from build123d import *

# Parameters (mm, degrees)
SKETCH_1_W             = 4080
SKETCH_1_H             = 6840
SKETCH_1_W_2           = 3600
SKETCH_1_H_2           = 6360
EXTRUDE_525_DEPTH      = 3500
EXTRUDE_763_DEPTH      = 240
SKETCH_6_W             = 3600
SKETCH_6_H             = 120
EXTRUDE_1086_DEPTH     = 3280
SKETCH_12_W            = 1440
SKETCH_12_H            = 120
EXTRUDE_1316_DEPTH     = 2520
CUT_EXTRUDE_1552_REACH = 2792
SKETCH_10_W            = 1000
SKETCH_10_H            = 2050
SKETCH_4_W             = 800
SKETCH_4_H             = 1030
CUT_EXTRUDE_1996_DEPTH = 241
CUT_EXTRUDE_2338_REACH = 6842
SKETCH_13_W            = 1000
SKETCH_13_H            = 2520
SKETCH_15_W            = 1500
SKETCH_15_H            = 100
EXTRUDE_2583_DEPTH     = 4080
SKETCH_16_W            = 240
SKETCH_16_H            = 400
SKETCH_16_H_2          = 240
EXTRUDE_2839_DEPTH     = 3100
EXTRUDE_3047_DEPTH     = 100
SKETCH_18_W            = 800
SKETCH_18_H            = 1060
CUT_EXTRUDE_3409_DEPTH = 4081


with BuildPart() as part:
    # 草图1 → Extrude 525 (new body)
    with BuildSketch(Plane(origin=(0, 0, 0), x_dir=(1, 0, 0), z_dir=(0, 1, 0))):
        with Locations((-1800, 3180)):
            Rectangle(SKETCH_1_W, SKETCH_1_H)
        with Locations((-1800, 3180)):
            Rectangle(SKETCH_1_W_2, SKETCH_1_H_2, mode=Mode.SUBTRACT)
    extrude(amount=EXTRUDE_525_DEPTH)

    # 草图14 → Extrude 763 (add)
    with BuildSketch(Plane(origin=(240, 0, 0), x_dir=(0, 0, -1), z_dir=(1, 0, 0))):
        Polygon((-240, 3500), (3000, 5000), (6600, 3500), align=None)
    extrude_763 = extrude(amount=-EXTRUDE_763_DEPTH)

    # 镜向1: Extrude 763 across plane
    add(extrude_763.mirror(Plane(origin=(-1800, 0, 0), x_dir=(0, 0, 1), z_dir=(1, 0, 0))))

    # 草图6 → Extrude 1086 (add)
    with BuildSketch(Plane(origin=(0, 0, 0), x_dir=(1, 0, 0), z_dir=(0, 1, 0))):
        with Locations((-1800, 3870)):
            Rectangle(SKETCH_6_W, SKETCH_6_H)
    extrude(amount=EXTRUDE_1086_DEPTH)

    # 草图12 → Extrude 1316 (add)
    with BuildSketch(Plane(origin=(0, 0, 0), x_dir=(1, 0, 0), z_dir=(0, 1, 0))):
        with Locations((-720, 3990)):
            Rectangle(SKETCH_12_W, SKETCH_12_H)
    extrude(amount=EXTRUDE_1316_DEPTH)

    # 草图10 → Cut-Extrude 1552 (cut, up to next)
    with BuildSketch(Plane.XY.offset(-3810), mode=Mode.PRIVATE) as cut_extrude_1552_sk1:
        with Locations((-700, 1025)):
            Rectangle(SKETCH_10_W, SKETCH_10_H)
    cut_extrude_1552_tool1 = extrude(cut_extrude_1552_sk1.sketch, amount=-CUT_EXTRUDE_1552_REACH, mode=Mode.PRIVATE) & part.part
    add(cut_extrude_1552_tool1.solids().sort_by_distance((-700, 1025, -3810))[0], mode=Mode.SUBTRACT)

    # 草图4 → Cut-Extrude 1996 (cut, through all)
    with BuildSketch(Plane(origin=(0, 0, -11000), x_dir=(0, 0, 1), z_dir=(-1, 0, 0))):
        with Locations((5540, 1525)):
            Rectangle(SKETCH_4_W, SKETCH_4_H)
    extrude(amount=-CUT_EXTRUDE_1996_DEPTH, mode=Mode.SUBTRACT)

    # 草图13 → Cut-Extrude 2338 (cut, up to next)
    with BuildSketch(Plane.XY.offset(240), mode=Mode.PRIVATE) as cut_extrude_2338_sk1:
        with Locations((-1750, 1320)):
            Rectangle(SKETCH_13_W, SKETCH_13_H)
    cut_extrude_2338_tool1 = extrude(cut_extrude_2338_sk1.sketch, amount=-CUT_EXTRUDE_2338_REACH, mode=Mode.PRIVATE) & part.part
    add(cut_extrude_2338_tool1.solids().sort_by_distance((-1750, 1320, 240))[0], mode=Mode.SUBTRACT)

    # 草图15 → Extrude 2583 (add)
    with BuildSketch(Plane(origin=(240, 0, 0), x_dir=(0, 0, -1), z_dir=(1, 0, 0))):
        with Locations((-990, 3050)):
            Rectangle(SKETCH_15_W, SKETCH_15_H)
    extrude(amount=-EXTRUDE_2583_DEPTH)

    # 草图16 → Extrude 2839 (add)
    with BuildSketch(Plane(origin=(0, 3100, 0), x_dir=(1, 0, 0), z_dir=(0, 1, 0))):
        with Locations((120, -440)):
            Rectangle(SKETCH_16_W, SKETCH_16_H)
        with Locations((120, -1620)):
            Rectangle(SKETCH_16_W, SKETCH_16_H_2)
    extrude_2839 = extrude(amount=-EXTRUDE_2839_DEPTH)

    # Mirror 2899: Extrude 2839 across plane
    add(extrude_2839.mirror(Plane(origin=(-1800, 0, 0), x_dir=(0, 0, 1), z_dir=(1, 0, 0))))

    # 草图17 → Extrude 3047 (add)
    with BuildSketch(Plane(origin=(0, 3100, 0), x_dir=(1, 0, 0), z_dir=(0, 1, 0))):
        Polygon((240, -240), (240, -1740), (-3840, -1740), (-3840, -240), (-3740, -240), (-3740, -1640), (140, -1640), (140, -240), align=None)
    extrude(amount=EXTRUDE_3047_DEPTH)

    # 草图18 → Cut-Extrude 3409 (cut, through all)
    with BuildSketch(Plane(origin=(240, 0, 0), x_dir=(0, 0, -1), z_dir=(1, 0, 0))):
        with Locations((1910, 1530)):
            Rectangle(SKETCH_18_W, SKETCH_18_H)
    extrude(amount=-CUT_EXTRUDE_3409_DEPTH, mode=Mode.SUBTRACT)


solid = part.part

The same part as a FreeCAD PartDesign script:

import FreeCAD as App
import Part
import Sketcher

V = App.Vector
Q = App.Units.Quantity

doc = App.newDocument("Part")
params = doc.addObject("Spreadsheet::Sheet", "Params")
for row, (alias, value) in enumerate([
    ("sketch1_width", "4080 mm"),
    ("sketch1_width2", "3600 mm"),
    ("sketch1_height", "6840 mm"),
    ("sketch1_height2", "6360 mm"),
    ("pad1_length", "3500 mm"),
    ("sketch2_height", "6840 mm"),
    ("sketch2_length", "3900 mm"),
    ("pad2_length", "240 mm"),
    ("sketch3_width", "3600 mm"),
    ("sketch3_height", "120 mm"),
    ("pad3_length", "3280 mm"),
    ("sketch4_width", "1440 mm"),
    ("sketch4_height", "120 mm"),
    ("pad4_length", "2520 mm"),
    ("sketch5_width", "1000 mm"),
    ("sketch5_height", "2050 mm"),
    ("sketch6_width", "1030 mm"),
    ("sketch6_height", "800 mm"),
    ("sketch7_width", "1000 mm"),
    ("sketch7_height", "2520 mm"),
    ("sketch8_width", "100 mm"),
    ("sketch8_height", "1500 mm"),
    ("pad5_length", "4080 mm"),
    ("sketch9_width", "240 mm"),
    ("sketch9_height", "400 mm"),
    ("pad6_length", "3100 mm"),
    ("sketch10_width", "100 mm"),
    ("sketch10_width2", "3880 mm"),
    ("sketch10_height", "1500 mm"),
    ("sketch10_height2", "1400 mm"),
    ("pad7_length", "100 mm"),
    ("sketch11_width", "1060 mm"),
    ("sketch11_height", "800 mm"),
], start=1):
    params.set(f"A{row}", alias)
    params.set(f"B{row}", "=" + value)
    params.setAlias(f"B{row}", alias)

body = doc.addObject("PartDesign::Body", "Body")

# Sketch on XZ plane
sketch1 = body.newObject("Sketcher::SketchObject", "Sketch")
sketch1.AttachmentSupport = (doc.getObject("XZ_Plane"), [""])
sketch1.MapMode = "FlatFace"
sketch1.addGeometry([
    Part.LineSegment(V(-3840, -6600, 0), V(-3840, 240, 0)),  # 0
    Part.LineSegment(V(-3840, 240, 0), V(240, 240, 0)),  # 1
    Part.LineSegment(V(240, 240, 0), V(240, -6600, 0)),  # 2
    Part.LineSegment(V(240, -6600, 0), V(-3840, -6600, 0)),  # 3
    Part.LineSegment(V(0, 0, 0), V(-3600, 0, 0)),  # 4
    Part.LineSegment(V(-3600, 0, 0), V(-3600, -6360, 0)),  # 5
    Part.LineSegment(V(-3600, -6360, 0), V(0, -6360, 0)),  # 6
    Part.LineSegment(V(0, -6360, 0), V(0, 0, 0)),  # 7
], False)
sketch1.addConstraint([
    Sketcher.Constraint("Coincident", 0, 2, 1, 1),
    Sketcher.Constraint("Coincident", 1, 2, 2, 1),
    Sketcher.Constraint("Coincident", 2, 2, 3, 1),
    Sketcher.Constraint("Coincident", 3, 2, 0, 1),
    Sketcher.Constraint("Coincident", 4, 2, 5, 1),
    Sketcher.Constraint("Coincident", 5, 2, 6, 1),
    Sketcher.Constraint("Coincident", 6, 2, 7, 1),
    Sketcher.Constraint("Coincident", 7, 2, 4, 1),
    Sketcher.Constraint("Vertical", 0),
    Sketcher.Constraint("Horizontal", 1),
    Sketcher.Constraint("Vertical", 2),
    Sketcher.Constraint("Horizontal", 3),
    Sketcher.Constraint("Horizontal", 4),
    Sketcher.Constraint("Vertical", 5),
    Sketcher.Constraint("Horizontal", 6),
    Sketcher.Constraint("Vertical", 7),
    Sketcher.Constraint("Coincident", 7, 2, -1, 1),
    Sketcher.Constraint("DistanceX", 1, 1, 1, 2, Q("4080 mm")),
    Sketcher.Constraint("DistanceX", 4, 2, 4, 1, Q("3600 mm")),
    Sketcher.Constraint("DistanceY", 0, 1, 0, 2, Q("6840 mm")),
    Sketcher.Constraint("DistanceY", 5, 2, 5, 1, Q("6360 mm")),
    Sketcher.Constraint("DistanceX", 0, 2, -1, 1, Q("3840 mm")),
    Sketcher.Constraint("DistanceY", -1, 1, 0, 2, Q("240 mm")),
])
sketch1.setExpression("Constraints[17]", "Params.sketch1_width")
sketch1.setExpression("Constraints[18]", "Params.sketch1_width2")
sketch1.setExpression("Constraints[19]", "Params.sketch1_height")
sketch1.setExpression("Constraints[20]", "Params.sketch1_height2")
pad1 = body.newObject("PartDesign::Pad", "Pad")
pad1.Profile = sketch1
pad1.setExpression("Length", "Params.pad1_length")
pad1.Reversed = True

# Sketch on YZ plane
sketch2 = body.newObject("Sketcher::SketchObject", "Sketch001")
sketch2.AttachmentSupport = (doc.getObject("YZ_Plane"), [""])
sketch2.MapMode = "FlatFace"
sketch2.AttachmentOffset = App.Placement(V(0, 0, 240), App.Rotation())
sketch2.addGeometry([
    Part.LineSegment(V(5000, -3000, 0), V(3500, 240, 0)),
    Part.LineSegment(V(3500, 240, 0), V(3500, -6600, 0)),
    Part.LineSegment(V(3500, -6600, 0), V(5000, -3000, 0)),
], False)
sketch2.addConstraint([
    Sketcher.Constraint("Coincident", 0, 2, 1, 1),
    Sketcher.Constraint("Coincident", 1, 2, 2, 1),
    Sketcher.Constraint("Coincident", 2, 2, 0, 1),
    Sketcher.Constraint("Vertical", 1),
    Sketcher.Constraint("DistanceY", 1, 2, 1, 1, Q("6840 mm")),
    Sketcher.Constraint("Distance", 2, Q("3900 mm")),
    Sketcher.Constraint("DistanceX", -1, 1, 0, 2, Q("3500 mm")),
    Sketcher.Constraint("DistanceY", -1, 1, 0, 2, Q("240 mm")),
    Sketcher.Constraint("DistanceX", -1, 1, 2, 2, Q("5000 mm")),
])
sketch2.setExpression("Constraints[4]", "Params.sketch2_height")
sketch2.setExpression("Constraints[5]", "Params.sketch2_length")
pad2 = body.newObject("PartDesign::Pad", "Pad001")
pad2.Profile = sketch2
pad2.setExpression("Length", "Params.pad2_length")
pad2.Reversed = True
doc.recompute()

datumplane = body.newObject("PartDesign::Plane", "DatumPlane")
datumplane.AttachmentSupport = (doc.getObject("YZ_Plane"), [""])
datumplane.MapMode = "FlatFace"
datumplane.AttachmentOffset = App.Placement(V(0, 0, -1800), App.Rotation())
mirrored = body.newObject("PartDesign::Mirrored", "Mirrored")
mirrored.Originals = [pad2]
mirrored.MirrorPlane = (datumplane, [""])
body.Tip = mirrored

# Sketch on XZ plane
sketch3 = body.newObject("Sketcher::SketchObject", "Sketch002")
sketch3.AttachmentSupport = (doc.getObject("XZ_Plane"), [""])
sketch3.MapMode = "FlatFace"
sketch3.addGeometry([
    Part.LineSegment(V(-3600, -3930, 0), V(-3600, -3810, 0)),
    Part.LineSegment(V(-3600, -3810, 0), V(0, -3810, 0)),
    Part.LineSegment(V(0, -3810, 0), V(0, -3930, 0)),
    Part.LineSegment(V(0, -3930, 0), V(-3600, -3930, 0)),
], False)
sketch3.addConstraint([
    Sketcher.Constraint("Coincident", 0, 2, 1, 1),
    Sketcher.Constraint("Coincident", 1, 2, 2, 1),
    Sketcher.Constraint("Coincident", 2, 2, 3, 1),
    Sketcher.Constraint("Coincident", 3, 2, 0, 1),
    Sketcher.Constraint("Vertical", 0),
    Sketcher.Constraint("Horizontal", 1),
    Sketcher.Constraint("Vertical", 2),
    Sketcher.Constraint("Horizontal", 3),
    Sketcher.Constraint("PointOnObject", 1, 2, -2),
    Sketcher.Constraint("DistanceX", 1, 1, 1, 2, Q("3600 mm")),
    Sketcher.Constraint("DistanceY", 0, 1, 0, 2, Q("120 mm")),
    Sketcher.Constraint("DistanceY", 0, 2, -1, 1, Q("3810 mm")),
])
sketch3.setExpression("Constraints[9]", "Params.sketch3_width")
sketch3.setExpression("Constraints[10]", "Params.sketch3_height")
pad3 = body.newObject("PartDesign::Pad", "Pad002")
pad3.Profile = sketch3
pad3.setExpression("Length", "Params.pad3_length")
pad3.Reversed = True

# Sketch on XZ plane
sketch4 = body.newObject("Sketcher::SketchObject", "Sketch003")
sketch4.AttachmentSupport = (doc.getObject("XZ_Plane"), [""])
sketch4.MapMode = "FlatFace"
sketch4.addGeometry([
    Part.LineSegment(V(-1440, -4050, 0), V(-1440, -3930, 0)),
    Part.LineSegment(V(-1440, -3930, 0), V(0, -3930, 0)),
    Part.LineSegment(V(0, -3930, 0), V(0, -4050, 0)),
    Part.LineSegment(V(0, -4050, 0), V(-1440, -4050, 0)),
], False)
sketch4.addConstraint([
    Sketcher.Constraint("Coincident", 0, 2, 1, 1),
    Sketcher.Constraint("Coincident", 1, 2, 2, 1),
    Sketcher.Constraint("Coincident", 2, 2, 3, 1),
    Sketcher.Constraint("Coincident", 3, 2, 0, 1),
    Sketcher.Constraint("Vertical", 0),
    Sketcher.Constraint("Horizontal", 1),
    Sketcher.Constraint("Vertical", 2),
    Sketcher.Constraint("Horizontal", 3),
    Sketcher.Constraint("PointOnObject", 1, 2, -2),
    Sketcher.Constraint("DistanceX", 1, 1, 1, 2, Q("1440 mm")),
    Sketcher.Constraint("DistanceY", 0, 1, 0, 2, Q("120 mm")),
    Sketcher.Constraint("DistanceY", 0, 2, -1, 1, Q("3930 mm")),
])
sketch4.setExpression("Constraints[9]", "Params.sketch4_width")
sketch4.setExpression("Constraints[10]", "Params.sketch4_height")
pad4 = body.newObject("PartDesign::Pad", "Pad003")
pad4.Profile = sketch4
pad4.setExpression("Length", "Params.pad4_length")
pad4.Reversed = True

# Sketch on XY plane
sketch5 = body.newObject("Sketcher::SketchObject", "Sketch004")
sketch5.AttachmentSupport = (doc.getObject("XY_Plane"), [""])
sketch5.MapMode = "FlatFace"
sketch5.AttachmentOffset = App.Placement(V(0, 0, -3810), App.Rotation())
sketch5.addGeometry([
    Part.LineSegment(V(-1200, 2050, 0), V(-1200, 0, 0)),
    Part.LineSegment(V(-1200, 0, 0), V(-200, 0, 0)),
    Part.LineSegment(V(-200, 0, 0), V(-200, 2050, 0)),
    Part.LineSegment(V(-200, 2050, 0), V(-1200, 2050, 0)),
], False)
sketch5.addConstraint([
    Sketcher.Constraint("Coincident", 0, 2, 1, 1),
    Sketcher.Constraint("Coincident", 1, 2, 2, 1),
    Sketcher.Constraint("Coincident", 2, 2, 3, 1),
    Sketcher.Constraint("Coincident", 3, 2, 0, 1),
    Sketcher.Constraint("Vertical", 0),
    Sketcher.Constraint("Horizontal", 1),
    Sketcher.Constraint("Vertical", 2),
    Sketcher.Constraint("Horizontal", 3),
    Sketcher.Constraint("PointOnObject", 0, 2, -1),
    Sketcher.Constraint("DistanceX", 1, 1, 1, 2, Q("1000 mm")),
    Sketcher.Constraint("DistanceY", 0, 2, 0, 1, Q("2050 mm")),
    Sketcher.Constraint("DistanceX", 0, 2, -1, 1, Q("1200 mm")),
])
sketch5.setExpression("Constraints[9]", "Params.sketch5_width")
sketch5.setExpression("Constraints[10]", "Params.sketch5_height")
pocket1 = body.newObject("PartDesign::Pocket", "Pocket")
pocket1.Profile = sketch5
pocket1.Type = "UpToFirst"

# Sketch on YZ plane
sketch6 = body.newObject("Sketcher::SketchObject", "Sketch005")
sketch6.AttachmentSupport = (doc.getObject("YZ_Plane"), [""])
sketch6.MapMode = "FlatFace"
sketch6.addGeometry([
    Part.LineSegment(V(2040, -5860, 0), V(1010, -5860, 0)),
    Part.LineSegment(V(1010, -5860, 0), V(1010, -5060, 0)),
    Part.LineSegment(V(1010, -5060, 0), V(2040, -5060, 0)),
    Part.LineSegment(V(2040, -5060, 0), V(2040, -5860, 0)),
], False)
sketch6.addConstraint([
    Sketcher.Constraint("Coincident", 0, 2, 1, 1),
    Sketcher.Constraint("Coincident", 1, 2, 2, 1),
    Sketcher.Constraint("Coincident", 2, 2, 3, 1),
    Sketcher.Constraint("Coincident", 3, 2, 0, 1),
    Sketcher.Constraint("Horizontal", 0),
    Sketcher.Constraint("Vertical", 1),
    Sketcher.Constraint("Horizontal", 2),
    Sketcher.Constraint("Vertical", 3),
    Sketcher.Constraint("DistanceX", 0, 2, 0, 1, Q("1030 mm")),
    Sketcher.Constraint("DistanceY", 1, 1, 1, 2, Q("800 mm")),
    Sketcher.Constraint("DistanceX", -1, 1, 0, 2, Q("1010 mm")),
    Sketcher.Constraint("DistanceY", 0, 2, -1, 1, Q("5860 mm")),
])
sketch6.setExpression("Constraints[8]", "Params.sketch6_width")
sketch6.setExpression("Constraints[9]", "Params.sketch6_height")
pocket2 = body.newObject("PartDesign::Pocket", "Pocket001")
pocket2.Profile = sketch6
pocket2.Type = "ThroughAll"
pocket2.Reversed = True

# Sketch on XY plane
sketch7 = body.newObject("Sketcher::SketchObject", "Sketch006")
sketch7.AttachmentSupport = (doc.getObject("XY_Plane"), [""])
sketch7.MapMode = "FlatFace"
sketch7.AttachmentOffset = App.Placement(V(0, 0, 240), App.Rotation())
sketch7.addGeometry([
    Part.LineSegment(V(-2250, 2580, 0), V(-2250, 60, 0)),
    Part.LineSegment(V(-2250, 60, 0), V(-1250, 60, 0)),
    Part.LineSegment(V(-1250, 60, 0), V(-1250, 2580, 0)),
    Part.LineSegment(V(-1250, 2580, 0), V(-2250, 2580, 0)),
], False)
sketch7.addConstraint([
    Sketcher.Constraint("Coincident", 0, 2, 1, 1),
    Sketcher.Constraint("Coincident", 1, 2, 2, 1),
    Sketcher.Constraint("Coincident", 2, 2, 3, 1),
    Sketcher.Constraint("Coincident", 3, 2, 0, 1),
    Sketcher.Constraint("Vertical", 0),
    Sketcher.Constraint("Horizontal", 1),
    Sketcher.Constraint("Vertical", 2),
    Sketcher.Constraint("Horizontal", 3),
    Sketcher.Constraint("DistanceX", 1, 1, 1, 2, Q("1000 mm")),
    Sketcher.Constraint("DistanceY", 0, 2, 0, 1, Q("2520 mm")),
    Sketcher.Constraint("DistanceX", 0, 2, -1, 1, Q("2250 mm")),
    Sketcher.Constraint("DistanceY", -1, 1, 0, 2, Q("60 mm")),
])
sketch7.setExpression("Constraints[8]", "Params.sketch7_width")
sketch7.setExpression("Constraints[9]", "Params.sketch7_height")
pocket3 = body.newObject("PartDesign::Pocket", "Pocket002")
pocket3.Profile = sketch7
pocket3.Type = "UpToFirst"

# Sketch on YZ plane
sketch8 = body.newObject("Sketcher::SketchObject", "Sketch007")
sketch8.AttachmentSupport = (doc.getObject("YZ_Plane"), [""])
sketch8.MapMode = "FlatFace"
sketch8.AttachmentOffset = App.Placement(V(0, 0, 240), App.Rotation())
sketch8.addGeometry([
    Part.LineSegment(V(3100, 1740, 0), V(3000, 1740, 0)),
    Part.LineSegment(V(3000, 1740, 0), V(3000, 240, 0)),
    Part.LineSegment(V(3000, 240, 0), V(3100, 240, 0)),
    Part.LineSegment(V(3100, 240, 0), V(3100, 1740, 0)),
], False)
sketch8.addConstraint([
    Sketcher.Constraint("Coincident", 0, 2, 1, 1),
    Sketcher.Constraint("Coincident", 1, 2, 2, 1),
    Sketcher.Constraint("Coincident", 2, 2, 3, 1),
    Sketcher.Constraint("Coincident", 3, 2, 0, 1),
    Sketcher.Constraint("Horizontal", 0),
    Sketcher.Constraint("Vertical", 1),
    Sketcher.Constraint("Horizontal", 2),
    Sketcher.Constraint("Vertical", 3),
    Sketcher.Constraint("DistanceX", 0, 2, 0, 1, Q("100 mm")),
    Sketcher.Constraint("DistanceY", 1, 2, 1, 1, Q("1500 mm")),
    Sketcher.Constraint("DistanceX", -1, 1, 0, 2, Q("3000 mm")),
    Sketcher.Constraint("DistanceY", -1, 1, 0, 2, Q("1740 mm")),
])
sketch8.setExpression("Constraints[8]", "Params.sketch8_width")
sketch8.setExpression("Constraints[9]", "Params.sketch8_height")
pad5 = body.newObject("PartDesign::Pad", "Pad004")
pad5.Profile = sketch8
pad5.setExpression("Length", "Params.pad5_length")
pad5.Reversed = True

# Sketch on XZ plane
sketch9 = body.newObject("Sketcher::SketchObject", "Sketch008")
sketch9.AttachmentSupport = (doc.getObject("XZ_Plane"), [""])
sketch9.MapMode = "FlatFace"
sketch9.AttachmentOffset = App.Placement(V(0, 0, -3100), App.Rotation())
sketch9.addGeometry([
    Part.LineSegment(V(0, 240, 0), V(0, 640, 0)),  # 0
    Part.LineSegment(V(0, 640, 0), V(240, 640, 0)),  # 1
    Part.LineSegment(V(240, 640, 0), V(240, 240, 0)),  # 2
    Part.LineSegment(V(240, 240, 0), V(0, 240, 0)),  # 3
    Part.LineSegment(V(0, 1500, 0), V(0, 1740, 0)),  # 4
    Part.LineSegment(V(0, 1740, 0), V(240, 1740, 0)),  # 5
    Part.LineSegment(V(240, 1740, 0), V(240, 1500, 0)),  # 6
    Part.LineSegment(V(240, 1500, 0), V(0, 1500, 0)),  # 7
], False)
sketch9.addConstraint([
    Sketcher.Constraint("Coincident", 0, 2, 1, 1),
    Sketcher.Constraint("Coincident", 1, 2, 2, 1),
    Sketcher.Constraint("Coincident", 2, 2, 3, 1),
    Sketcher.Constraint("Coincident", 3, 2, 0, 1),
    Sketcher.Constraint("Coincident", 4, 2, 5, 1),
    Sketcher.Constraint("Coincident", 5, 2, 6, 1),
    Sketcher.Constraint("Coincident", 6, 2, 7, 1),
    Sketcher.Constraint("Coincident", 7, 2, 4, 1),
    Sketcher.Constraint("Vertical", 0),
    Sketcher.Constraint("Horizontal", 1),
    Sketcher.Constraint("Vertical", 2),
    Sketcher.Constraint("Horizontal", 3),
    Sketcher.Constraint("Vertical", 4),
    Sketcher.Constraint("Horizontal", 5),
    Sketcher.Constraint("Vertical", 6),
    Sketcher.Constraint("Horizontal", 7),
    Sketcher.Constraint("PointOnObject", 0, 2, -2),
    Sketcher.Constraint("PointOnObject", 4, 2, -2),
    Sketcher.Constraint("Vertical", 2, 2, 5, 2),
    Sketcher.Constraint("Equal", 7, 4),
    Sketcher.Constraint("DistanceX", 1, 1, 1, 2, Q("240 mm")),
    Sketcher.Constraint("DistanceY", 0, 1, 0, 2, Q("400 mm")),
    Sketcher.Constraint("DistanceY", -1, 1, 0, 2, Q("640 mm")),
    Sketcher.Constraint("DistanceY", -1, 1, 4, 2, Q("1740 mm")),
])
sketch9.setExpression("Constraints[20]", "Params.sketch9_width")
sketch9.setExpression("Constraints[21]", "Params.sketch9_height")
pad6 = body.newObject("PartDesign::Pad", "Pad005")
pad6.Profile = sketch9
pad6.setExpression("Length", "Params.pad6_length")
doc.recompute()

datumplane2 = body.newObject("PartDesign::Plane", "DatumPlane001")
datumplane2.AttachmentSupport = (doc.getObject("YZ_Plane"), [""])
datumplane2.MapMode = "FlatFace"
datumplane2.AttachmentOffset = App.Placement(V(0, 0, -1800), App.Rotation())
mirrored2 = body.newObject("PartDesign::Mirrored", "Mirrored001")
mirrored2.Originals = [pad6]
mirrored2.MirrorPlane = (datumplane2, [""])
body.Tip = mirrored2

# Sketch on XZ plane
sketch10 = body.newObject("Sketcher::SketchObject", "Sketch009")
sketch10.AttachmentSupport = (doc.getObject("XZ_Plane"), [""])
sketch10.MapMode = "FlatFace"
sketch10.AttachmentOffset = App.Placement(V(0, 0, -3100), App.Rotation())
sketch10.addGeometry([
    Part.LineSegment(V(240, 1740, 0), V(240, 240, 0)),  # 0
    Part.LineSegment(V(240, 240, 0), V(140, 240, 0)),  # 1
    Part.LineSegment(V(140, 240, 0), V(140, 1640, 0)),  # 2
    Part.LineSegment(V(140, 1640, 0), V(-3740, 1640, 0)),  # 3
    Part.LineSegment(V(-3740, 1640, 0), V(-3740, 240, 0)),  # 4
    Part.LineSegment(V(-3740, 240, 0), V(-3840, 240, 0)),  # 5
    Part.LineSegment(V(-3840, 240, 0), V(-3840, 1740, 0)),  # 6
    Part.LineSegment(V(-3840, 1740, 0), V(240, 1740, 0)),  # 7
], False)
sketch10.addConstraint([
    Sketcher.Constraint("Coincident", 0, 2, 1, 1),
    Sketcher.Constraint("Coincident", 1, 2, 2, 1),
    Sketcher.Constraint("Coincident", 2, 2, 3, 1),
    Sketcher.Constraint("Coincident", 3, 2, 4, 1),
    Sketcher.Constraint("Coincident", 4, 2, 5, 1),
    Sketcher.Constraint("Coincident", 5, 2, 6, 1),
    Sketcher.Constraint("Coincident", 6, 2, 7, 1),
    Sketcher.Constraint("Coincident", 7, 2, 0, 1),
    Sketcher.Constraint("Vertical", 0),
    Sketcher.Constraint("Horizontal", 1),
    Sketcher.Constraint("Vertical", 2),
    Sketcher.Constraint("Horizontal", 3),
    Sketcher.Constraint("Vertical", 4),
    Sketcher.Constraint("Horizontal", 5),
    Sketcher.Constraint("Vertical", 6),
    Sketcher.Constraint("Horizontal", 7),
    Sketcher.Constraint("Horizontal", 1, 2, 4, 2),
    Sketcher.Constraint("Equal", 1, 5),
    Sketcher.Constraint("DistanceX", 1, 2, 1, 1, Q("100 mm")),
    Sketcher.Constraint("DistanceX", 3, 2, 3, 1, Q("3880 mm")),
    Sketcher.Constraint("DistanceY", 0, 2, 0, 1, Q("1500 mm")),
    Sketcher.Constraint("DistanceY", 2, 1, 2, 2, Q("1400 mm")),
    Sketcher.Constraint("DistanceX", -1, 1, 0, 2, Q("240 mm")),
    Sketcher.Constraint("DistanceY", -1, 1, 0, 2, Q("240 mm")),
])
sketch10.setExpression("Constraints[18]", "Params.sketch10_width")
sketch10.setExpression("Constraints[19]", "Params.sketch10_width2")
sketch10.setExpression("Constraints[20]", "Params.sketch10_height")
sketch10.setExpression("Constraints[21]", "Params.sketch10_height2")
pad7 = body.newObject("PartDesign::Pad", "Pad006")
pad7.Profile = sketch10
pad7.setExpression("Length", "Params.pad7_length")
pad7.Reversed = True

# Sketch on YZ plane
sketch11 = body.newObject("Sketcher::SketchObject", "Sketch010")
sketch11.AttachmentSupport = (doc.getObject("YZ_Plane"), [""])
sketch11.MapMode = "FlatFace"
sketch11.AttachmentOffset = App.Placement(V(0, 0, 240), App.Rotation())
sketch11.addGeometry([
    Part.LineSegment(V(2060, -1510, 0), V(1000, -1510, 0)),
    Part.LineSegment(V(1000, -1510, 0), V(1000, -2310, 0)),
    Part.LineSegment(V(1000, -2310, 0), V(2060, -2310, 0)),
    Part.LineSegment(V(2060, -2310, 0), V(2060, -1510, 0)),
], False)
sketch11.addConstraint([
    Sketcher.Constraint("Coincident", 0, 2, 1, 1),
    Sketcher.Constraint("Coincident", 1, 2, 2, 1),
    Sketcher.Constraint("Coincident", 2, 2, 3, 1),
    Sketcher.Constraint("Coincident", 3, 2, 0, 1),
    Sketcher.Constraint("Horizontal", 0),
    Sketcher.Constraint("Vertical", 1),
    Sketcher.Constraint("Horizontal", 2),
    Sketcher.Constraint("Vertical", 3),
    Sketcher.Constraint("DistanceX", 0, 2, 0, 1, Q("1060 mm")),
    Sketcher.Constraint("DistanceY", 1, 2, 1, 1, Q("800 mm")),
    Sketcher.Constraint("DistanceX", -1, 1, 0, 2, Q("1000 mm")),
    Sketcher.Constraint("DistanceY", 0, 2, -1, 1, Q("1510 mm")),
])
sketch11.setExpression("Constraints[8]", "Params.sketch11_width")
sketch11.setExpression("Constraints[9]", "Params.sketch11_height")
pocket4 = body.newObject("PartDesign::Pocket", "Pocket003")
pocket4.Profile = sketch11
pocket4.Type = "ThroughAll"

doc.recompute()
